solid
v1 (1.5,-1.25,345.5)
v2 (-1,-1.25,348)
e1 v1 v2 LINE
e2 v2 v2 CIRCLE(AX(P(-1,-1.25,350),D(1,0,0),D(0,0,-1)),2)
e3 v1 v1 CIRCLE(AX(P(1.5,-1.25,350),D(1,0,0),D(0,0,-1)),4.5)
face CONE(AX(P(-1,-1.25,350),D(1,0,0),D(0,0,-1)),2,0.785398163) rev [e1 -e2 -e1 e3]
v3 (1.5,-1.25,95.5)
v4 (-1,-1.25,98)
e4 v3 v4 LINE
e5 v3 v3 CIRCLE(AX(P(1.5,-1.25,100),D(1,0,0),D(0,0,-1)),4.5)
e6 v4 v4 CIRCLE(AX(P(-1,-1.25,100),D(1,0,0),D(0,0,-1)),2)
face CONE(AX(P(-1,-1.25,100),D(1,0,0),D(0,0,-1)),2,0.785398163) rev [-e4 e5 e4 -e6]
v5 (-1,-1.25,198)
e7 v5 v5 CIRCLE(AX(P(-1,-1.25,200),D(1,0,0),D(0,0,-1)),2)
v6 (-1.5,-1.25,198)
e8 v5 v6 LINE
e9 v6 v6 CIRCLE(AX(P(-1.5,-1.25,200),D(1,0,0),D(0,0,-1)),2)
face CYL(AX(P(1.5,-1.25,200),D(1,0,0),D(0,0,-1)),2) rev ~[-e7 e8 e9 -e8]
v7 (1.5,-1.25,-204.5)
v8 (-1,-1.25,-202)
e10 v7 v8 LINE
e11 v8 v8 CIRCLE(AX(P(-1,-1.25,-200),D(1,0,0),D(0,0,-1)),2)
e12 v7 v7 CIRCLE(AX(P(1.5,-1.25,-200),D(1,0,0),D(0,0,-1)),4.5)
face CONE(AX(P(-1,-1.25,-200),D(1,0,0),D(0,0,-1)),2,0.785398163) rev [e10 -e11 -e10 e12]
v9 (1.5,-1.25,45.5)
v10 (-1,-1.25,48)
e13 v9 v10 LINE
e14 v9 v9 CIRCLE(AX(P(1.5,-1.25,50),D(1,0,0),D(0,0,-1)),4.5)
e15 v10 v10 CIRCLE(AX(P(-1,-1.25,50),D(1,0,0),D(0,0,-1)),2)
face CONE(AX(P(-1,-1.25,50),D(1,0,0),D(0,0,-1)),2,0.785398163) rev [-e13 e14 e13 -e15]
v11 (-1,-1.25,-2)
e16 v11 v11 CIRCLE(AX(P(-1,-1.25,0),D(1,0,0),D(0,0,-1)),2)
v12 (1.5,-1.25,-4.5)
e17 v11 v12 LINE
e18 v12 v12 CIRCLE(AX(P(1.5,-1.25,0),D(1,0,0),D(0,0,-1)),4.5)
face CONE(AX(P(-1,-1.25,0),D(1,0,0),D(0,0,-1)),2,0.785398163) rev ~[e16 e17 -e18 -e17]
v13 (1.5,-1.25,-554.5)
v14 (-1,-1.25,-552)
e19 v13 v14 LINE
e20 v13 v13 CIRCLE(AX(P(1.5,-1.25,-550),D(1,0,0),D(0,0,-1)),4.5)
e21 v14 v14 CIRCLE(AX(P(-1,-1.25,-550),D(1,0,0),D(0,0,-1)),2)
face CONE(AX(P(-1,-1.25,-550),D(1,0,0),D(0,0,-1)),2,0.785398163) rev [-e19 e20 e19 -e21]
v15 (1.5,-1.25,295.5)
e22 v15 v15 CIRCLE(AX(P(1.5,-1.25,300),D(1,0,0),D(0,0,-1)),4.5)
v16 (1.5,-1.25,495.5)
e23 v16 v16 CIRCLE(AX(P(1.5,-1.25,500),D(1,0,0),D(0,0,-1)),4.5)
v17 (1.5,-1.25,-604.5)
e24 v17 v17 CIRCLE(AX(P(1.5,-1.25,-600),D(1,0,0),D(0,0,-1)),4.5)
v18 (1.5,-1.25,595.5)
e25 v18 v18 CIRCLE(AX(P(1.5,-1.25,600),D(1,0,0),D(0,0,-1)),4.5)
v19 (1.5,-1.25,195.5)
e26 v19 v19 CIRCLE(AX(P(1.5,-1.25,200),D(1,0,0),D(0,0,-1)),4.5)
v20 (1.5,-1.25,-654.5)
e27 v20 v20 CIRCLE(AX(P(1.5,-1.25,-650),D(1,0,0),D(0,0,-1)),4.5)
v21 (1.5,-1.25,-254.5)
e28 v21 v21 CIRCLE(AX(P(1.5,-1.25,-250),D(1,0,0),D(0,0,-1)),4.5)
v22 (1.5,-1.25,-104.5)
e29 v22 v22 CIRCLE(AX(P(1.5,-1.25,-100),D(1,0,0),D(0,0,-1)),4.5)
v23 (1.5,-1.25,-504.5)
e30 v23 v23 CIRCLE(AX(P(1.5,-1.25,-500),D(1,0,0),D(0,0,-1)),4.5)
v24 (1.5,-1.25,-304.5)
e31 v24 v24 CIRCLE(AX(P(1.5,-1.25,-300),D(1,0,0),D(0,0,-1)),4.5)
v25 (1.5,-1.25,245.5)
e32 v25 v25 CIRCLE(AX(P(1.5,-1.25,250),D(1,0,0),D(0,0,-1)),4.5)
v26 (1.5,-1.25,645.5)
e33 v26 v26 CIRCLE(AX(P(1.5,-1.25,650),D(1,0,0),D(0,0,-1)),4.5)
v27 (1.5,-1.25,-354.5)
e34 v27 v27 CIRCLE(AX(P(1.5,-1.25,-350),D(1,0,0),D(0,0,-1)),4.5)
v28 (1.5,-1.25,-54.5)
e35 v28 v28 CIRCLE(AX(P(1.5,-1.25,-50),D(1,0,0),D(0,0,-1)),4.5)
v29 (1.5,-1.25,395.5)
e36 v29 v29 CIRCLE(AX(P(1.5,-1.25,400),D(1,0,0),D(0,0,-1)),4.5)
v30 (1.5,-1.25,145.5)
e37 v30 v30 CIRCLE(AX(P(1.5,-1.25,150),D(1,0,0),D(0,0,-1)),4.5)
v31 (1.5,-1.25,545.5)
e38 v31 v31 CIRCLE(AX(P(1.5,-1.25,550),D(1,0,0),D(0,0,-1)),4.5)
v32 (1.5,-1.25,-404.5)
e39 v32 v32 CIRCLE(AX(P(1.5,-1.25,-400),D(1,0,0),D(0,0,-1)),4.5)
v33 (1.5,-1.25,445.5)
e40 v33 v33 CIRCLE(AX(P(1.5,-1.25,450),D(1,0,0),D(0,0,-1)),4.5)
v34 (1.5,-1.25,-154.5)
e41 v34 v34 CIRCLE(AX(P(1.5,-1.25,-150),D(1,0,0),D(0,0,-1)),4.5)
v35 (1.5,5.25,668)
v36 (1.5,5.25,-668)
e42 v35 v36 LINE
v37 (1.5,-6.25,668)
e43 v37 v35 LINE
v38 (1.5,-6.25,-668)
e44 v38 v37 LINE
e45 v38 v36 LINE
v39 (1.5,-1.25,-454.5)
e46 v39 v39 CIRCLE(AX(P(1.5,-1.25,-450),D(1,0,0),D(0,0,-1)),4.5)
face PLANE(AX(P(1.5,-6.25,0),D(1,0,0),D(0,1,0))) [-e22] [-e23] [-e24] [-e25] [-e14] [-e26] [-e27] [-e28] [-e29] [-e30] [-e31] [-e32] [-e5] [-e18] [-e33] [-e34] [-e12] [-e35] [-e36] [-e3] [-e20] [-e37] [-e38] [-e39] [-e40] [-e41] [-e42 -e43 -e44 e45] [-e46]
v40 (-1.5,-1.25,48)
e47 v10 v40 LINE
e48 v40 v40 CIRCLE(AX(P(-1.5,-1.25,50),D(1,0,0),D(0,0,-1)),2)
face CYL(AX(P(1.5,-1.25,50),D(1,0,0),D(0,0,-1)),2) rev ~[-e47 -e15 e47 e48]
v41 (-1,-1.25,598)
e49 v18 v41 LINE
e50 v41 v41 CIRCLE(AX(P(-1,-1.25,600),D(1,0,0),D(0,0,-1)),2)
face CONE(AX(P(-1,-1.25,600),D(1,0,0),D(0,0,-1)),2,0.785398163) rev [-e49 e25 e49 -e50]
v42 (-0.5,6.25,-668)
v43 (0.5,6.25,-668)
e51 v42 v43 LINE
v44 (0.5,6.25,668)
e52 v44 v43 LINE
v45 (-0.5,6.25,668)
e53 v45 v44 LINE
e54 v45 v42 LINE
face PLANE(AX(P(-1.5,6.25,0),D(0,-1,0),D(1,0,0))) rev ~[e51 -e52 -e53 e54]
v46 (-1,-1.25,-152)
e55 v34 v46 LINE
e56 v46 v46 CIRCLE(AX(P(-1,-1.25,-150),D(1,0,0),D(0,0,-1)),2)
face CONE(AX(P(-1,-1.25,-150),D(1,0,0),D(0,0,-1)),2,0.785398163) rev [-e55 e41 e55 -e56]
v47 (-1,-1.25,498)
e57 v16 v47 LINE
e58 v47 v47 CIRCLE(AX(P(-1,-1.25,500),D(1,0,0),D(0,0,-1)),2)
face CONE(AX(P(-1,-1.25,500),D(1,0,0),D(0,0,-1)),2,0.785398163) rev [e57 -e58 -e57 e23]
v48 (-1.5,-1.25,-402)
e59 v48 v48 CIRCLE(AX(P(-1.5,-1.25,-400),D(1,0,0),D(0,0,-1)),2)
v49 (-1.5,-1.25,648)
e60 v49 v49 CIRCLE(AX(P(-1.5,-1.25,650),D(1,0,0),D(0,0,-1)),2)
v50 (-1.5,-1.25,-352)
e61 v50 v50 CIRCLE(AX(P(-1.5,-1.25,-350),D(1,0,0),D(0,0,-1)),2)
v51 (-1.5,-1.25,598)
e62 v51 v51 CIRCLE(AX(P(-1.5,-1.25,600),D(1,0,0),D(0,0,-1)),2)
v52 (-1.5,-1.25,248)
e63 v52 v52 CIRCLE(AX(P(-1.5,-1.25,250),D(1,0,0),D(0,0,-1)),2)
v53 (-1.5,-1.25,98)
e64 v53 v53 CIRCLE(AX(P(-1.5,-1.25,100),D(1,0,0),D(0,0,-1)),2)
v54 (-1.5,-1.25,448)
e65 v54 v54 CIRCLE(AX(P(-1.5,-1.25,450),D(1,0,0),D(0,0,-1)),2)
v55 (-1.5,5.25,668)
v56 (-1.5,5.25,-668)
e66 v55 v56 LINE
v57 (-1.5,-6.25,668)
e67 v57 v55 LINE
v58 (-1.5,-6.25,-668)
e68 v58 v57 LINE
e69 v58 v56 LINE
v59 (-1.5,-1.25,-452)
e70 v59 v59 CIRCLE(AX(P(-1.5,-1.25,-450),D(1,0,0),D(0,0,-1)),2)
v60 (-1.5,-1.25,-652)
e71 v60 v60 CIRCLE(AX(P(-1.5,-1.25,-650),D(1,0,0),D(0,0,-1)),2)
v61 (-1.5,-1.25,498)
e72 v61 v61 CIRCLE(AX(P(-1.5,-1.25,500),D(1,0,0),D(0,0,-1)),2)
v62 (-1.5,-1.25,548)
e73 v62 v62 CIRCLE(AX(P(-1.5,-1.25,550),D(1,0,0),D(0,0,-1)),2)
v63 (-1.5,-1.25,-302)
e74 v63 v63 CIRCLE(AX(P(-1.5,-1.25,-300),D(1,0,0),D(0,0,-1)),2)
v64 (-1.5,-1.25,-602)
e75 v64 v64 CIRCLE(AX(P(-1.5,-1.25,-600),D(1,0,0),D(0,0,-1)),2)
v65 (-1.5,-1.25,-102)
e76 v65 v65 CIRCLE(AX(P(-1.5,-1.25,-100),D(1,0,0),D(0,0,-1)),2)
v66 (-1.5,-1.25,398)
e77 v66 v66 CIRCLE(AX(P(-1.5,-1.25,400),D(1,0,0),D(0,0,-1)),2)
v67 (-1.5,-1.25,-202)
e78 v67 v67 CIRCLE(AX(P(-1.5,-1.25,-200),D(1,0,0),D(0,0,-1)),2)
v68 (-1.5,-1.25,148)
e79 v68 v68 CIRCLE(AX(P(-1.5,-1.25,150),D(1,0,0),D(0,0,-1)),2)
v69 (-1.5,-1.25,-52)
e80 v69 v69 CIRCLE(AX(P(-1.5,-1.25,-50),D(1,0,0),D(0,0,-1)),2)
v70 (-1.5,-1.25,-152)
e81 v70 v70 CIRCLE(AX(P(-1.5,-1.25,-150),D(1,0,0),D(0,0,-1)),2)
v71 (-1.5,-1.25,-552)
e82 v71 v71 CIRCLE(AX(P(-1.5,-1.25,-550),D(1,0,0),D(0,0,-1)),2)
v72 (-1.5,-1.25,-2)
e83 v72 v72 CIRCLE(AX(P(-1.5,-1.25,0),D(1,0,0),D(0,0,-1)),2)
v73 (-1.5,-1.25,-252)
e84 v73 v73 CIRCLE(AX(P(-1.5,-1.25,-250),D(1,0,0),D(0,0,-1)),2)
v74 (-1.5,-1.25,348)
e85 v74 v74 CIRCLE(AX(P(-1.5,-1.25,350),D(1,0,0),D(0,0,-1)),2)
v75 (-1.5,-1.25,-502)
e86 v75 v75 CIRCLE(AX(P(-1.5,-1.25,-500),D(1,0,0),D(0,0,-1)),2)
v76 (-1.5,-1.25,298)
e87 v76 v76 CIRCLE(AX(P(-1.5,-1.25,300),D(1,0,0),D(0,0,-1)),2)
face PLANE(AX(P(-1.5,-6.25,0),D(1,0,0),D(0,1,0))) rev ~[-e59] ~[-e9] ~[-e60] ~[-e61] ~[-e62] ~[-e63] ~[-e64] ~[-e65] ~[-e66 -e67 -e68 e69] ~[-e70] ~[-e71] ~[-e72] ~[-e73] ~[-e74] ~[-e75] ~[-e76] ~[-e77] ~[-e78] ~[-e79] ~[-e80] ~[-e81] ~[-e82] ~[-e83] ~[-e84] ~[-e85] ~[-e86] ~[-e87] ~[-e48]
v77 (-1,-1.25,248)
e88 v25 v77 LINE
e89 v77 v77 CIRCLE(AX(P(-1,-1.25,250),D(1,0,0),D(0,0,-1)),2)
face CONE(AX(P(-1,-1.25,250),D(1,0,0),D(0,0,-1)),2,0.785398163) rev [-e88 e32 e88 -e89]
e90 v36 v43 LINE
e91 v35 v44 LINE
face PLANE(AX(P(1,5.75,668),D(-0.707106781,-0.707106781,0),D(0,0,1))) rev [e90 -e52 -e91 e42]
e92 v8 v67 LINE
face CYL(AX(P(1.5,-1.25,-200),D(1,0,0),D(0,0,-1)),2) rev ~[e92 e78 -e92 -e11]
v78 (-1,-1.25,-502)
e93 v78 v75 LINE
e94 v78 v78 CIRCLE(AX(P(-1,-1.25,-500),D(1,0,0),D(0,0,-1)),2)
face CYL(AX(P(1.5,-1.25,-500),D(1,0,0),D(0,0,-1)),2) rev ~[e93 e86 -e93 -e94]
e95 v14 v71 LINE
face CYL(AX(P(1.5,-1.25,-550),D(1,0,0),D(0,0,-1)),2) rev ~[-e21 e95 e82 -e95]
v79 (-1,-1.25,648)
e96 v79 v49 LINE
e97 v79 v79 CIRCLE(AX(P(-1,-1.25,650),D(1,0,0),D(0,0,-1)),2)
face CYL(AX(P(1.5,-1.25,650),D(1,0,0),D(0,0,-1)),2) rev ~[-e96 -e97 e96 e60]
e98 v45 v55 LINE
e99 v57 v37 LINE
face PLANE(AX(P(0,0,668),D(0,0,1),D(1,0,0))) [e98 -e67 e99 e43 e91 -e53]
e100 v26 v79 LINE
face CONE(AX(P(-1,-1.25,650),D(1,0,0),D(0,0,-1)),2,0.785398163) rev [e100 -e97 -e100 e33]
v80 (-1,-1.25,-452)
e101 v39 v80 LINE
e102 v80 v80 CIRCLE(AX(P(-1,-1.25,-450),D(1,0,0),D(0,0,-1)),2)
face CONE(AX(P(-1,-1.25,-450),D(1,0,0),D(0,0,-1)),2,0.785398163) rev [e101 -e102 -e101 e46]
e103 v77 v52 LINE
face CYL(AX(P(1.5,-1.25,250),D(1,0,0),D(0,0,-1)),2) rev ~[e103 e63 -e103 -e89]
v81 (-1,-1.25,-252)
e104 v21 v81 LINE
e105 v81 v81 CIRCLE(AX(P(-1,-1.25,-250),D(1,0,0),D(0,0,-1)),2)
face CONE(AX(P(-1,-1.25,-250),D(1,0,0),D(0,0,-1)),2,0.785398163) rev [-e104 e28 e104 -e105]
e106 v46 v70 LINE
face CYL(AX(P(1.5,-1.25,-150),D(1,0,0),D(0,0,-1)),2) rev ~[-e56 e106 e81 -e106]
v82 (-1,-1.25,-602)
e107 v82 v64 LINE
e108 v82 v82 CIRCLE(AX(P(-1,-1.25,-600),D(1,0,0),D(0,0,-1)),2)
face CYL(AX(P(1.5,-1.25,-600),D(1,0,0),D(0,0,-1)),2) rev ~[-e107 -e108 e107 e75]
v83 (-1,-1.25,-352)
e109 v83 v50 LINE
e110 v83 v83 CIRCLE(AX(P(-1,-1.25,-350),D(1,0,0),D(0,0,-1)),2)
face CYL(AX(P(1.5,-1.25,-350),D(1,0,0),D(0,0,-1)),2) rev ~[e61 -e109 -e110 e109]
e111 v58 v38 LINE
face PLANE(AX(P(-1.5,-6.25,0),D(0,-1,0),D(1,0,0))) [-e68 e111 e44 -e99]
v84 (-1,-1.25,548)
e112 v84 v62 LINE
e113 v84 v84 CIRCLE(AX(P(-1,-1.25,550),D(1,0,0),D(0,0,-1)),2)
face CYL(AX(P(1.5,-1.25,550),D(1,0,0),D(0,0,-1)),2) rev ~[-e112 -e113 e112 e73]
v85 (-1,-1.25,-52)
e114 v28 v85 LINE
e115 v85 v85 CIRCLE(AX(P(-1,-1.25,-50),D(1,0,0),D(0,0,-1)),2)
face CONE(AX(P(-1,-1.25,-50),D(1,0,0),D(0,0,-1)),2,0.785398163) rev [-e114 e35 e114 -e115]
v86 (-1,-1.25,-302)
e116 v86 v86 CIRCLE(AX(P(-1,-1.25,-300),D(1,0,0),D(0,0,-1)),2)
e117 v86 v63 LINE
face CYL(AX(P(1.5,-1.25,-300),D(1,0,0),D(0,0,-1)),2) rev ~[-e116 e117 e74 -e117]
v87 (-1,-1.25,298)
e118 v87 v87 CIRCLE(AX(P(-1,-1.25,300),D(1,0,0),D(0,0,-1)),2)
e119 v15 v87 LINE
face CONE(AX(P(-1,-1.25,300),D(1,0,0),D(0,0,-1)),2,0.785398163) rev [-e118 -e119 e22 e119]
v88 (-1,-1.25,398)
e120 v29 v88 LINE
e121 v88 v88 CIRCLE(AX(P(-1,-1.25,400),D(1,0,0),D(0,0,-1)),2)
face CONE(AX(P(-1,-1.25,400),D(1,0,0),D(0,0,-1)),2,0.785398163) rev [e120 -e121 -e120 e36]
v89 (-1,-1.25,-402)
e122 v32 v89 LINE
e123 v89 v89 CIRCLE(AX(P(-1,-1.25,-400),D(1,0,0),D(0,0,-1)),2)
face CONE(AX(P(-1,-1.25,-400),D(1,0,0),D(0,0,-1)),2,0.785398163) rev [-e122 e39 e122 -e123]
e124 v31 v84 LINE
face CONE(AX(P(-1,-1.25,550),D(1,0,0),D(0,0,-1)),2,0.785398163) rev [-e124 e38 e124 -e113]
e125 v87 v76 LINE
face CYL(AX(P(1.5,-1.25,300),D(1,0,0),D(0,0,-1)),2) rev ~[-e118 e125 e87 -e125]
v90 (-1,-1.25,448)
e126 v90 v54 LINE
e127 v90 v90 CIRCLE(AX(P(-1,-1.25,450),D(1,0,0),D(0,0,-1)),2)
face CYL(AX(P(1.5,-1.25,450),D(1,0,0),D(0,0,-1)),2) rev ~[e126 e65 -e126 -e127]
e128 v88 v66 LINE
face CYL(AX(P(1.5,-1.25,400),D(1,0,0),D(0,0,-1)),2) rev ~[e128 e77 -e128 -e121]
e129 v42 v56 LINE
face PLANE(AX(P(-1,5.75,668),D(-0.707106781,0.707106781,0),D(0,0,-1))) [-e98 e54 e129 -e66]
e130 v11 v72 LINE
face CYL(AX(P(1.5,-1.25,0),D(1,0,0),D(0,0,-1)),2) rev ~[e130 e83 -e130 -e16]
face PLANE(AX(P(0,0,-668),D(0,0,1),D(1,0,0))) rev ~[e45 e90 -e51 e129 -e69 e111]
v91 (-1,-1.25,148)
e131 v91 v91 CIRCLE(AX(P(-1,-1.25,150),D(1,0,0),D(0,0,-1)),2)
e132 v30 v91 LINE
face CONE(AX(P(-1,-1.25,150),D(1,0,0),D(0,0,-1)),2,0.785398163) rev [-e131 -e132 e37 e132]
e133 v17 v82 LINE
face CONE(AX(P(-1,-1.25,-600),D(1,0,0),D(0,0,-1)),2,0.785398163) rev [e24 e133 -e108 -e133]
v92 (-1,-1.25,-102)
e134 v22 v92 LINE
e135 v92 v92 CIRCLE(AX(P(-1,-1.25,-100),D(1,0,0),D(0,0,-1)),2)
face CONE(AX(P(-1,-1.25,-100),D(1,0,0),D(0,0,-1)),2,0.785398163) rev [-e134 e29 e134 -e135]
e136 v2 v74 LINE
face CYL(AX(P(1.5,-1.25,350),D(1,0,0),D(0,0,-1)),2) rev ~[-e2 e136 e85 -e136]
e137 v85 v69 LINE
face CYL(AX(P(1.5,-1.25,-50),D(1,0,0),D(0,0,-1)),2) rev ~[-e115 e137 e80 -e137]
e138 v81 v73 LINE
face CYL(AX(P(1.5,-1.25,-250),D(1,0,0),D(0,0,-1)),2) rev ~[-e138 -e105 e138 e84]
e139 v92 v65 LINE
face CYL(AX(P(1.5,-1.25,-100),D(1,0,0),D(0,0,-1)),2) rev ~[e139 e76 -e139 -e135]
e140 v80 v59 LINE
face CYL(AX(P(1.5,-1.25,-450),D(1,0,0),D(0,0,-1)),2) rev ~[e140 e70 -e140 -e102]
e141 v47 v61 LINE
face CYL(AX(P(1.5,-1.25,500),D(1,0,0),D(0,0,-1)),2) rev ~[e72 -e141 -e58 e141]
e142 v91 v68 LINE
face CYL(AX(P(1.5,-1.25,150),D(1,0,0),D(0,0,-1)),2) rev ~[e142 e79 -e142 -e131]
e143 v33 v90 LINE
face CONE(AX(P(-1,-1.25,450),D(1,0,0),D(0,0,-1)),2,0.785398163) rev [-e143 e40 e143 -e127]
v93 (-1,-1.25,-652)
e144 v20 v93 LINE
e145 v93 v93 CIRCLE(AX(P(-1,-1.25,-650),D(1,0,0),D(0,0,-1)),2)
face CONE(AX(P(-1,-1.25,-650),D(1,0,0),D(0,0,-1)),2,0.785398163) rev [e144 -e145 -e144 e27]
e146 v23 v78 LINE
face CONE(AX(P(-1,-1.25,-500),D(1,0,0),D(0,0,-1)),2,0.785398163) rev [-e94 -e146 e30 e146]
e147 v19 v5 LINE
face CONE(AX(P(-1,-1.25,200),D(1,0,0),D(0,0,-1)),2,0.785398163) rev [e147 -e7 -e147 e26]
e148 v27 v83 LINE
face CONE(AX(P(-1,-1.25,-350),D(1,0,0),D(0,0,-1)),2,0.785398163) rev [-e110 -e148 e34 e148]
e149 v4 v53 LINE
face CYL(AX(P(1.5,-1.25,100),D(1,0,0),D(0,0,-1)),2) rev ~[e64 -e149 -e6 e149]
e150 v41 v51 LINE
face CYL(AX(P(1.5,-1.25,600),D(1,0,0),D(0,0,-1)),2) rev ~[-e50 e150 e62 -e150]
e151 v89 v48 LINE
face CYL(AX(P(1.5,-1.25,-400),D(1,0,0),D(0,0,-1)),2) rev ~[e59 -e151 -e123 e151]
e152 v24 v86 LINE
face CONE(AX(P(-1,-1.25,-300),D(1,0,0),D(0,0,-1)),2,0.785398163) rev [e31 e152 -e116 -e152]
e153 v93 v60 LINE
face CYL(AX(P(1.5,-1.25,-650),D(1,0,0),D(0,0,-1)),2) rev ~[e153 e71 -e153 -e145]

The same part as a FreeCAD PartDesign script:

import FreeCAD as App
import Part
import Sketcher

V = App.Vector


def edges_at(feature, points):
    """Names of the edges that pass closest to the given points."""
    edges = feature.Shape.Edges
    near = lambda p: min(range(len(edges)), key=lambda i: edges[i].distToShape(Part.Vertex(*p))[0])
    return sorted({f"Edge{near(p) + 1}" for p in points})

doc = App.newDocument("Part")
body = doc.addObject("PartDesign::Body", "Body")

# Sketch on XY plane
sketch1 = doc.addObject("Sketcher::SketchObject", "Sketch")
body.addObject(sketch1)
sketch1.AttachmentSupport = (doc.XY_Plane, [""])
sketch1.MapMode = "FlatFace"
sketch1.addGeometry([
    Part.LineSegment(V(-1.5, 6.2, 0), V(-1.5, -6.2, 0)),
    Part.LineSegment(V(-1.5, -6.2, 0), V(1.5, -6.2, 0)),
    Part.LineSegment(V(1.5, -6.2, 0), V(1.5, 6.2, 0)),
    Part.LineSegment(V(1.5, 6.2, 0), V(-1.5, 6.2, 0)),
], False)
sketch1.addConstraint([
    Sketcher.Constraint("Coincident", 0, 2, 1, 1),
    Sketcher.Constraint("Coincident", 1, 2, 2, 1),
    Sketcher.Constraint("Coincident", 2, 2, 3, 1),
    Sketcher.Constraint("Coincident", 3, 2, 0, 1),
    Sketcher.Constraint("Vertical", 0),
    Sketcher.Constraint("Horizontal", 1),
    Sketcher.Constraint("Vertical", 2),
    Sketcher.Constraint("Horizontal", 3),
    Sketcher.Constraint("Symmetric", 0, 2, 2, 2, -1, 1),
    Sketcher.Constraint("DistanceX", 1, 1, 1, 2, 3.0),
    Sketcher.Constraint("DistanceY", 0, 2, 0, 1, 12.5),
])
pad1 = doc.addObject("PartDesign::Pad", "Pad")
body.addObject(pad1)
pad1.Profile = sketch1
pad1.Length = 1336
pad1.Midplane = True

# Sketch on YZ plane
sketch2 = doc.addObject("Sketcher::SketchObject", "Sketch001")
body.addObject(sketch2)
sketch2.AttachmentSupport = (doc.YZ_Plane, [""])
sketch2.MapMode = "FlatFace"
sketch2.AttachmentOffset = App.Placement(V(0, 0, 1.5), App.Rotation())
sketch2.addGeometry(Part.Circle(V(-1.2, 0, 0), V(0, 0, 1), 2), False)
sketch2.addConstraint([
    Sketcher.Constraint("PointOnObject", 0, 3, -1),
    Sketcher.Constraint("Diameter", 0, 4.0),
    Sketcher.Constraint("DistanceX", 0, 3, -1, 1, 1.25),
])
pocket1 = doc.addObject("PartDesign::Pocket", "Pocket")
body.addObject(pocket1)
pocket1.Profile = sketch2
pocket1.Length = 10
doc.recompute()

chamfer = doc.addObject("PartDesign::Chamfer", "Chamfer")
body.addObject(chamfer)
chamfer.Base = (pocket1, edges_at(pocket1, [(1.5, -1.25, 2)]))
chamfer.Size = 2.5
doc.recompute()

linearpattern = doc.addObject("PartDesign::LinearPattern", "LinearPattern")
body.addObject(linearpattern)
linearpattern.Originals = [pocket1]
linearpattern.Direction = (doc.Z_Axis, [""])
linearpattern.Mode = "offset"
linearpattern.Offset = 50
linearpattern.Occurrences = 14
body.Tip = linearpattern
doc.recompute()

chamfer2 = doc.addObject("PartDesign::Chamfer", "Chamfer001")
body.addObject(chamfer2)
chamfer2.Base = (linearpattern, edges_at(linearpattern, [
    (1.5, -1.25, 52),
    (1.5, -1.25, 102),
    (1.5, -1.25, 152),
    (1.5, -1.25, 202),
    (1.5, -1.25, 252),
    (1.5, -1.25, 302),
    (1.5, -1.25, 352),
    (1.5, -1.25, 402),
    (1.5, -1.25, 452),
    (1.5, -1.25, 502),
    (1.5, -1.25, 552),
    (1.5, -1.25, 602),
    (1.5, -1.25, 652),
]))
chamfer2.Size = 2.5
doc.recompute()

linearpattern2 = doc.addObject("PartDesign::LinearPattern", "LinearPattern001")
body.addObject(linearpattern2)
linearpattern2.Originals = [pocket1]
linearpattern2.Direction = (doc.Z_Axis, [""])
linearpattern2.Mode = "offset"
linearpattern2.Offset = 50
linearpattern2.Occurrences = 14
linearpattern2.Reversed = True
body.Tip = linearpattern2
doc.recompute()

chamfer3 = doc.addObject("PartDesign::Chamfer", "Chamfer002")
body.addObject(chamfer3)
chamfer3.Base = (linearpattern2, edges_at(linearpattern2, [
    (1.5, -1.25, -48),
    (1.5, -1.25, -98),
    (1.5, -1.25, -148),
    (1.5, -1.25, -198),
    (1.5, -1.25, -248),
    (1.5, -1.25, -298),
    (1.5, -1.25, -348),
    (1.5, -1.25, -398),
    (1.5, -1.25, -448),
    (1.5, -1.25, -498),
    (1.5, -1.25, -548),
    (1.5, -1.25, -598),
    (1.5, -1.25, -648),
]))
chamfer3.Size = 2.5
doc.recompute()

chamfer4 = doc.addObject("PartDesign::Chamfer", "Chamfer003")
body.addObject(chamfer4)
chamfer4.Base = (chamfer3, edges_at(chamfer3, [(-1.5, 6.25, 0), (1.5, 6.25, 0)]))
chamfer4.Size = 1

doc.recompute()
